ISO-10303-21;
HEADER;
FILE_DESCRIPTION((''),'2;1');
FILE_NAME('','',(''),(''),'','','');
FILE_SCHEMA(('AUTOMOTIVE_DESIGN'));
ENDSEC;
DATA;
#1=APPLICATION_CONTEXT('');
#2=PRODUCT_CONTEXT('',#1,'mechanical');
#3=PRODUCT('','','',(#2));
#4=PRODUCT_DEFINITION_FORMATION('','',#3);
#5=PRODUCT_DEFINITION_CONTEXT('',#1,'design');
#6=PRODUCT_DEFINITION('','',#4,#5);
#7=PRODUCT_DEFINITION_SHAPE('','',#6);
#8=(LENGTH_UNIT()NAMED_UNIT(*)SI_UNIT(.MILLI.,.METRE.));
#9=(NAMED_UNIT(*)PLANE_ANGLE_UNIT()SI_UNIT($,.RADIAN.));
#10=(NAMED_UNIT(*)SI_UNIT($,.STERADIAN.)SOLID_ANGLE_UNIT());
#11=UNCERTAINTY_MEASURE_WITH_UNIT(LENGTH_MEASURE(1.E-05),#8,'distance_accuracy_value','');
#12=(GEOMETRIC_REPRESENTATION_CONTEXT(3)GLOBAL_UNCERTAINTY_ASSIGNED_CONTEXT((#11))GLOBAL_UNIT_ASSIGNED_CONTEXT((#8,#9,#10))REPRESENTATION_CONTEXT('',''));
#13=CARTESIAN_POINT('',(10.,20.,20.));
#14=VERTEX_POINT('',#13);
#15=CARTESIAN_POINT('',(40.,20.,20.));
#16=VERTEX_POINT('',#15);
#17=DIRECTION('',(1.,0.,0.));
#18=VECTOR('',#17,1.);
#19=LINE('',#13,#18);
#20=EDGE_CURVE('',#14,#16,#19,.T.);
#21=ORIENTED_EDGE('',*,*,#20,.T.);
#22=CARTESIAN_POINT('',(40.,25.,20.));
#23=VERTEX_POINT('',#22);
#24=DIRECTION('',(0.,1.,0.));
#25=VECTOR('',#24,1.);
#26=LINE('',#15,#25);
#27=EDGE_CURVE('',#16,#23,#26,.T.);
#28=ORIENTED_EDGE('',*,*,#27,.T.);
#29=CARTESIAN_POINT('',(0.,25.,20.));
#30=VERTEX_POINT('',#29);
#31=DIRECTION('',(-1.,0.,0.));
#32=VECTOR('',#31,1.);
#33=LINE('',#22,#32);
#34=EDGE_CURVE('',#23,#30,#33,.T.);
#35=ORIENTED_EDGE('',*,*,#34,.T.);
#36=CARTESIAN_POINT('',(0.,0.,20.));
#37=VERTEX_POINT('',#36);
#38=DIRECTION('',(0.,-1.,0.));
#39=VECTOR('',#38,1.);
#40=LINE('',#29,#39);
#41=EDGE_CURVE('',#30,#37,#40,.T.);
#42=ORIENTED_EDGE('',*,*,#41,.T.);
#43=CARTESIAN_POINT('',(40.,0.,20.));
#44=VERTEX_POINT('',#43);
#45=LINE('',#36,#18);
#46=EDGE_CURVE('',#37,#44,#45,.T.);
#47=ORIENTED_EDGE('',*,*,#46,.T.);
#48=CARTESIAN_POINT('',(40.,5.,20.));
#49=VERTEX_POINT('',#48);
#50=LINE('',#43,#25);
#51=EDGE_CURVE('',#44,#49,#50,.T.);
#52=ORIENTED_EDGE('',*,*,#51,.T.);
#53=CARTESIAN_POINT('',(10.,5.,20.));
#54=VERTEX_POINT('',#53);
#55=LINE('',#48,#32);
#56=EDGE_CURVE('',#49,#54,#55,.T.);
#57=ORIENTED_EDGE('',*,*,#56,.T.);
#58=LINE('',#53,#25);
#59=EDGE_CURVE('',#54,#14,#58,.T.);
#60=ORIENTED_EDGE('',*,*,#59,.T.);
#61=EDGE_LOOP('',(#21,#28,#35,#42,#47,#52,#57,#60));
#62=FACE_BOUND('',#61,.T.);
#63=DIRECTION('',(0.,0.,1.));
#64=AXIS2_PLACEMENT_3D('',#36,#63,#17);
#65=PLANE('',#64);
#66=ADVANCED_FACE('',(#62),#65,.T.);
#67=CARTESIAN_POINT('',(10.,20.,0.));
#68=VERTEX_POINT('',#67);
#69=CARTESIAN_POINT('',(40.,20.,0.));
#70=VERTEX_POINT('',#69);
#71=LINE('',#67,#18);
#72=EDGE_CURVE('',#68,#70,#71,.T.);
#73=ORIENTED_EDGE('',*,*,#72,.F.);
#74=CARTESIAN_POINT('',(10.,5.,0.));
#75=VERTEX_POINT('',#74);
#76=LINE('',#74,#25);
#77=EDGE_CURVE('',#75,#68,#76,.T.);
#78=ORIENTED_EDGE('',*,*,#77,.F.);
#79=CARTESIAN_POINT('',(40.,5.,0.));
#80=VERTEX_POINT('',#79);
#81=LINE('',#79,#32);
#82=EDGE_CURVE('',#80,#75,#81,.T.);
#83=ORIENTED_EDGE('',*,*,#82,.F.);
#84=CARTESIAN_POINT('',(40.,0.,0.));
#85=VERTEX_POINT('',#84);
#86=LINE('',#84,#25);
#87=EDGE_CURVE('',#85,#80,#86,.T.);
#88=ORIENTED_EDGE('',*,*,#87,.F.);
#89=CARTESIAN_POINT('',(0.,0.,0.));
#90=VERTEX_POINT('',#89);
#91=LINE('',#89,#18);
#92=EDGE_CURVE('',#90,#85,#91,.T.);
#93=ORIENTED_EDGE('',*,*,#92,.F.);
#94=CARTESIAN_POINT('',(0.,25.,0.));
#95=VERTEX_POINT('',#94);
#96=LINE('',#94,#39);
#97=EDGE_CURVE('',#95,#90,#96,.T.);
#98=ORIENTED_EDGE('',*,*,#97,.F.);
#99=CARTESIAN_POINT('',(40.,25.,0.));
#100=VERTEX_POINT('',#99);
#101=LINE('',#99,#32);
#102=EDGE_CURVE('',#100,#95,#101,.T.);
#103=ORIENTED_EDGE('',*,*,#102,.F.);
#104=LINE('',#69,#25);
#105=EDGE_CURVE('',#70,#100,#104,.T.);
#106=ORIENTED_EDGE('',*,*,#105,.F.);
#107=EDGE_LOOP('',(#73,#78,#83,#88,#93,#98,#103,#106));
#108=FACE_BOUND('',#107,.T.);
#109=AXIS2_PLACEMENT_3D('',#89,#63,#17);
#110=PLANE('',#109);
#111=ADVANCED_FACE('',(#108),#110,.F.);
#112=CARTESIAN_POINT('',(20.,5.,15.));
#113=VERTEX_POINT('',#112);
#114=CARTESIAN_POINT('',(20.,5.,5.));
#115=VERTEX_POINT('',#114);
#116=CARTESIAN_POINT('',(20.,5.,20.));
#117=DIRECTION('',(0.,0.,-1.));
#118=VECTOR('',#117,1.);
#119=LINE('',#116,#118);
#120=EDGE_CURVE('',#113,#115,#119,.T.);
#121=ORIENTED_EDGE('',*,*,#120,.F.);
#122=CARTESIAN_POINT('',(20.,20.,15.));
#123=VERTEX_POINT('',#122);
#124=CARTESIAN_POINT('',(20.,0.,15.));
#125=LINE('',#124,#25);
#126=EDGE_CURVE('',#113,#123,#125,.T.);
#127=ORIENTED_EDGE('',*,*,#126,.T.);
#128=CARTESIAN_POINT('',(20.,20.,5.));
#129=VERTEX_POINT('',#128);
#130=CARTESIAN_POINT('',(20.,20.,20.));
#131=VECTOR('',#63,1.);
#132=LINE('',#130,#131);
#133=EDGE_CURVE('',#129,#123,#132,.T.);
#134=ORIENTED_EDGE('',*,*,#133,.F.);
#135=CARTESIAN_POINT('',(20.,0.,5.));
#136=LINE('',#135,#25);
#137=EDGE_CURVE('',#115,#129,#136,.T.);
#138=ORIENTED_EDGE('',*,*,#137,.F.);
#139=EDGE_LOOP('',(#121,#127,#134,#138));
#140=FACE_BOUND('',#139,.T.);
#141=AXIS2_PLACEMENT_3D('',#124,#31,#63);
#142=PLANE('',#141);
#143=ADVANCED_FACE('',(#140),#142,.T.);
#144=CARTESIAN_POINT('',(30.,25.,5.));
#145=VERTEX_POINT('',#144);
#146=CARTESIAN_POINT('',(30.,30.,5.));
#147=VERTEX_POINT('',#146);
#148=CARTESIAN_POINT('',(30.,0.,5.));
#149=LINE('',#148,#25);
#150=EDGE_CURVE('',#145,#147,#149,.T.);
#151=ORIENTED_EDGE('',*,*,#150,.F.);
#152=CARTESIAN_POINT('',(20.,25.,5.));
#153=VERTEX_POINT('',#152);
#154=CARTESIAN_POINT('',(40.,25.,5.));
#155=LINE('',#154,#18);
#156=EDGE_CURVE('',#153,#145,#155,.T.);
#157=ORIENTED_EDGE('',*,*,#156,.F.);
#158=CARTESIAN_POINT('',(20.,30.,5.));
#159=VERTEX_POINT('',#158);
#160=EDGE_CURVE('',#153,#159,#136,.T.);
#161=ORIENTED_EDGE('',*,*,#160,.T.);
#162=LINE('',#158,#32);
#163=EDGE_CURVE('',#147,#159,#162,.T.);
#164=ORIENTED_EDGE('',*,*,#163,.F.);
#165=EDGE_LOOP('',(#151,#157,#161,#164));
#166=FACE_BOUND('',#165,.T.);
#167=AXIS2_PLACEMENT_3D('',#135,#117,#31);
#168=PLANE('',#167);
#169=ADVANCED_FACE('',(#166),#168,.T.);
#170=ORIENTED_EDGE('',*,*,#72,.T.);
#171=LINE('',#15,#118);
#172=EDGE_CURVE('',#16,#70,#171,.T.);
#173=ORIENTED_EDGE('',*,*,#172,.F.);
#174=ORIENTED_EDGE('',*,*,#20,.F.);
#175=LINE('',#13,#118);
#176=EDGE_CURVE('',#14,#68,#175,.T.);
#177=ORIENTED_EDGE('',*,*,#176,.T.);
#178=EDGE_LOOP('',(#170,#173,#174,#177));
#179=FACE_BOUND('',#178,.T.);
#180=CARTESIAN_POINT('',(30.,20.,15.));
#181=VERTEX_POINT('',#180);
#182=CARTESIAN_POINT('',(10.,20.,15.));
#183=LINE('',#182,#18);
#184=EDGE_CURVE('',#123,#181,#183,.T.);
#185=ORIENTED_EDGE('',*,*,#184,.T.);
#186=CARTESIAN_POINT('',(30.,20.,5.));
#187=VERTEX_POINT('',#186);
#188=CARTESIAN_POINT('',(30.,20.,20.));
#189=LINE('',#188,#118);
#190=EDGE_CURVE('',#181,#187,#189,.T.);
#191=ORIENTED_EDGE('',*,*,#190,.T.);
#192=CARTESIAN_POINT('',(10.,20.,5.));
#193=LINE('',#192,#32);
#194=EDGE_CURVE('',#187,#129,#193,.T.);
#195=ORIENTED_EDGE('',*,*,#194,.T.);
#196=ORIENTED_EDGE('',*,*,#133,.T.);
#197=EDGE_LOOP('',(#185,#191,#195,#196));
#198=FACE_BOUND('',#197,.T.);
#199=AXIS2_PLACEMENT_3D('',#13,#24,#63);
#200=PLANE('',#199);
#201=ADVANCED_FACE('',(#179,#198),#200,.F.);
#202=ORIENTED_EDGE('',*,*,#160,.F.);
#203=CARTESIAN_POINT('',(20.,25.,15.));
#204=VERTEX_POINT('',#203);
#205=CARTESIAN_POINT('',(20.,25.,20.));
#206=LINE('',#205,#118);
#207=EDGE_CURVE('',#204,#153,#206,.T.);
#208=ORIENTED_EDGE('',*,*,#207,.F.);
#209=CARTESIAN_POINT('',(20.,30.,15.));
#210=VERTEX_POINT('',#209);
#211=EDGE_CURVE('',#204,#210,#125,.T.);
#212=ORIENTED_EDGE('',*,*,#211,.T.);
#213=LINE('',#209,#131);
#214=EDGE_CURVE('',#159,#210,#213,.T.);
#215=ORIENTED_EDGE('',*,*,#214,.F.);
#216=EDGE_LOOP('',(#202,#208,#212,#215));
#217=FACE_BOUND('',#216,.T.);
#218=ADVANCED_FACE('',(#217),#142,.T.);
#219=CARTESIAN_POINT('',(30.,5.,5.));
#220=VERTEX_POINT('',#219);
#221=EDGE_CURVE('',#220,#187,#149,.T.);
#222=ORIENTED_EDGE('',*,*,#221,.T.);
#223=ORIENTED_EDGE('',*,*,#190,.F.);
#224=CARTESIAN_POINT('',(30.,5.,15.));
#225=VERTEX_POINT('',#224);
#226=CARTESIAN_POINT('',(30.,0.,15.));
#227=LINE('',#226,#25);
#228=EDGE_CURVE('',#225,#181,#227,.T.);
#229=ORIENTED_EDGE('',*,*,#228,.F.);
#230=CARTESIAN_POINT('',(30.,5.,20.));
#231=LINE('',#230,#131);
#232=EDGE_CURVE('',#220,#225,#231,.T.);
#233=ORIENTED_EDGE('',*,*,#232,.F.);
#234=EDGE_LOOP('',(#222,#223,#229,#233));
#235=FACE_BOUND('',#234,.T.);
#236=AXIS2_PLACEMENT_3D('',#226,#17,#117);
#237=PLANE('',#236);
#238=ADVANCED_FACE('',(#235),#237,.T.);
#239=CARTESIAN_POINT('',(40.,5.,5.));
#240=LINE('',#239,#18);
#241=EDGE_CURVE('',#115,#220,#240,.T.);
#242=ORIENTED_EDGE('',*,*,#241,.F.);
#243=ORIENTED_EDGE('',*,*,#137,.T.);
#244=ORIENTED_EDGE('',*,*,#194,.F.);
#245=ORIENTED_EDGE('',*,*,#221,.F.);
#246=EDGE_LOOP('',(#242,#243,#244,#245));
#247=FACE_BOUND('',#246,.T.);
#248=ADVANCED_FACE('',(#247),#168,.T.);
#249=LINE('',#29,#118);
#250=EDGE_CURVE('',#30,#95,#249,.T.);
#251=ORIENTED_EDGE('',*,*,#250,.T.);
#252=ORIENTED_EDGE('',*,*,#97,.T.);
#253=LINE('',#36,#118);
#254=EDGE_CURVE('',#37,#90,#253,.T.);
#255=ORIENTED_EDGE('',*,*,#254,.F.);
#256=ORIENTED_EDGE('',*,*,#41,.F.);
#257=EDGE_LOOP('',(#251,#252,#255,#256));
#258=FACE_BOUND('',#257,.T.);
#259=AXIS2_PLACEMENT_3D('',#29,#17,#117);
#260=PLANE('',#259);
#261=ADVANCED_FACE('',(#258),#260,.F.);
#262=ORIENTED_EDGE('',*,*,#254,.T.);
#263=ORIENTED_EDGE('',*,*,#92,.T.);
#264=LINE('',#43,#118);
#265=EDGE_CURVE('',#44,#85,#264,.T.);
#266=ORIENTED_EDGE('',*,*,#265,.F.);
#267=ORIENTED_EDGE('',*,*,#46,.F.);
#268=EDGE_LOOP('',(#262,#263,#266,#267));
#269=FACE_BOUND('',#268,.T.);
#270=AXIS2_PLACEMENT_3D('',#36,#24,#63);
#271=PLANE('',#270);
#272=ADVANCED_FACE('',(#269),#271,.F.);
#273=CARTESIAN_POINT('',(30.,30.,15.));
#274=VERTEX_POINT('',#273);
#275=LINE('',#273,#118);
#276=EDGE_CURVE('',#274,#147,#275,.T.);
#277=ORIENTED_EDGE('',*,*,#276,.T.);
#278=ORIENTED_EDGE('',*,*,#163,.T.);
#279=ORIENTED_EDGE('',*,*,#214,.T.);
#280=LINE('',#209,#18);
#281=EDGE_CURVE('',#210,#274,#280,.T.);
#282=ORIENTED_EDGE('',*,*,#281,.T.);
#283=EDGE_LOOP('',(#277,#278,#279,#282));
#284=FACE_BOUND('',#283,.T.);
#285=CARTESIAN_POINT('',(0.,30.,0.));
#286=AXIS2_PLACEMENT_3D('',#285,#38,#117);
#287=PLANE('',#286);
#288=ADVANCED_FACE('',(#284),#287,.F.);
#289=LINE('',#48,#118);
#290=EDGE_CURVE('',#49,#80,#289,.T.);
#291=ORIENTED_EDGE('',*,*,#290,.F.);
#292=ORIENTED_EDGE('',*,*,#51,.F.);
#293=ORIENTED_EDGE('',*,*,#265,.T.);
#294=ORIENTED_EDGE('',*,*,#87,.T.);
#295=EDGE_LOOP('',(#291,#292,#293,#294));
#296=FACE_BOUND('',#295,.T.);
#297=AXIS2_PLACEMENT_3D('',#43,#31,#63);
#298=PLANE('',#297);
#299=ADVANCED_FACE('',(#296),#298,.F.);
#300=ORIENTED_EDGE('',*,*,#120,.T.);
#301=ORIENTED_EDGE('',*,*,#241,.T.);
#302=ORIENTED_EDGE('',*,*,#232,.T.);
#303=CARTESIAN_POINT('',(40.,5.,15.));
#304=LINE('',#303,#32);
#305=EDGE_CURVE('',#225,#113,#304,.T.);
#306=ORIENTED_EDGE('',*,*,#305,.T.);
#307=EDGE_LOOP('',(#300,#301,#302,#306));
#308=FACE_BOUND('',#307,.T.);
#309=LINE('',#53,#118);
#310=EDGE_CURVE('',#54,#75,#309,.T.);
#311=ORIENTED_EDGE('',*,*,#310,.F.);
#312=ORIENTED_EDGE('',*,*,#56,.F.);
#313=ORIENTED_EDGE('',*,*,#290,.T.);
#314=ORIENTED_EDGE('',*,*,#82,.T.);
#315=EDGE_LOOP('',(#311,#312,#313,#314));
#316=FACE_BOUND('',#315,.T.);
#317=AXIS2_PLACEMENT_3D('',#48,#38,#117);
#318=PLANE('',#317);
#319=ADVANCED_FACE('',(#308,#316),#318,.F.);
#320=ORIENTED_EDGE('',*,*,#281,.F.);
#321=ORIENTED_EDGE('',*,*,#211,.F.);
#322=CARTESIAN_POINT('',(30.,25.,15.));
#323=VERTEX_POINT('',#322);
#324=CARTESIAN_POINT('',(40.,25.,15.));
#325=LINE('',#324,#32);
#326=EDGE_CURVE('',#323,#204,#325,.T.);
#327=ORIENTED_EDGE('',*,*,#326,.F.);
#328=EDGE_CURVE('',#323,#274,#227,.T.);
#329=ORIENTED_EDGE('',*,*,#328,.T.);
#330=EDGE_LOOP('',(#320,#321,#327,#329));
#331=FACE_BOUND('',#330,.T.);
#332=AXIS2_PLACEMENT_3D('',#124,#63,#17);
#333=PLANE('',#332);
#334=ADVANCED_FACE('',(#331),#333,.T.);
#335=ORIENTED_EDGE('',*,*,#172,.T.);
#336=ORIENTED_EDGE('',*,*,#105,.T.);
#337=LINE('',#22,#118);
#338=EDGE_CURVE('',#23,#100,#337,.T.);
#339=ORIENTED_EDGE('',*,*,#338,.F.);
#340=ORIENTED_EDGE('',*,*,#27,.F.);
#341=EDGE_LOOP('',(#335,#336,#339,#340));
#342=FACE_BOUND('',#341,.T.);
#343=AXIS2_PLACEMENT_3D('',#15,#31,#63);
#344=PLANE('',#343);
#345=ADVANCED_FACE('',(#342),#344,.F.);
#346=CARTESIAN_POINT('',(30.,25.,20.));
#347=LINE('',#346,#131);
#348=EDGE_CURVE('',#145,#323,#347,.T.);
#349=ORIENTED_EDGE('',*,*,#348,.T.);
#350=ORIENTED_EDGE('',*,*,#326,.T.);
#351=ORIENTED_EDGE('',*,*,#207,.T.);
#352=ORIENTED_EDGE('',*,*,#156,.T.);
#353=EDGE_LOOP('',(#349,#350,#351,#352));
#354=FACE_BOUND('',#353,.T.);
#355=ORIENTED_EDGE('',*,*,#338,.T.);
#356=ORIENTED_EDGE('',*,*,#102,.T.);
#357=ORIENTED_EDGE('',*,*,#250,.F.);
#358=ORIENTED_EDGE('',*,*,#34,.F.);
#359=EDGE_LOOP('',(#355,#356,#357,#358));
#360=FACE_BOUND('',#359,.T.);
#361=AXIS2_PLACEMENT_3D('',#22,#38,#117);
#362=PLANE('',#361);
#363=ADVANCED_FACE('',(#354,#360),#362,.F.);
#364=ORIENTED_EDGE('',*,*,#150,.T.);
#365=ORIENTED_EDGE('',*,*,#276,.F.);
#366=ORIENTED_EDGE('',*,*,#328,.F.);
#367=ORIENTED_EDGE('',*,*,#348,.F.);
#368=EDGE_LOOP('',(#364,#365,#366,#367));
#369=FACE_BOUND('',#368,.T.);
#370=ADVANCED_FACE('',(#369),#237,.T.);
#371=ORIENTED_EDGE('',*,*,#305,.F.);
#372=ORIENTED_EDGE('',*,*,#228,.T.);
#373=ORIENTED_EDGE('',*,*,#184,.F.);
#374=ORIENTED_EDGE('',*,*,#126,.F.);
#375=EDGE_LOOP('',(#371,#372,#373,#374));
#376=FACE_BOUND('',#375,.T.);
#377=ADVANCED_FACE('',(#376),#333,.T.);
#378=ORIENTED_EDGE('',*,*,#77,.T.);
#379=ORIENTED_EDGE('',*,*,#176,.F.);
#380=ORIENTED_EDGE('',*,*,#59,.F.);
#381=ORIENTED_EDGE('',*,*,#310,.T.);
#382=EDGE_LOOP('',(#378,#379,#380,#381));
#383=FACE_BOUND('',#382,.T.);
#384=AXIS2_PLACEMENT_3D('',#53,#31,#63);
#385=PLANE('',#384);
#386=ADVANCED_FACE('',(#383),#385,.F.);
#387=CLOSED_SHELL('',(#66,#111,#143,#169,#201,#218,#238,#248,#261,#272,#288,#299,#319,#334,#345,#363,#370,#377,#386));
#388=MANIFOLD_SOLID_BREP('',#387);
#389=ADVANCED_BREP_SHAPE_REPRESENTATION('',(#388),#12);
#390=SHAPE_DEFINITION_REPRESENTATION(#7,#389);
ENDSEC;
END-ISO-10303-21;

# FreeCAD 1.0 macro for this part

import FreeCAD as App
import Part
import Sketcher
from FreeCAD import Vector

doc = App.newDocument("Part")
body = doc.addObject("PartDesign::Body", "Body")

sketch1 = body.newObject("Sketcher::SketchObject", "Sketch")
sketch1.AttachmentSupport = (doc.getObject("XY_Plane"), [""])
sketch1.MapMode = "FlatFace"
sketch1.addGeometry(Part.LineSegment(Vector(0, 0, 0), Vector(40, 0, 0)), False)
sketch1.addGeometry(Part.LineSegment(Vector(40, 0, 0), Vector(40, 5, 0)), False)
sketch1.addGeometry(Part.LineSegment(Vector(40, 5, 0), Vector(10, 5, 0)), False)
sketch1.addGeometry(Part.LineSegment(Vector(10, 5, 0), Vector(10, 20, 0)), False)
sketch1.addGeometry(Part.LineSegment(Vector(10, 20, 0), Vector(40, 20, 0)), False)
sketch1.addGeometry(Part.LineSegment(Vector(40, 20, 0), Vector(40, 25, 0)), False)
sketch1.addGeometry(Part.LineSegment(Vector(40, 25, 0), Vector(0, 25, 0)), False)
sketch1.addGeometry(Part.LineSegment(Vector(0, 25, 0), Vector(0, 0, 0)), False)
sketch1.addConstraint(Sketcher.Constraint("Coincident", 0, 2, 1, 1))
sketch1.addConstraint(Sketcher.Constraint("Coincident", 1, 2, 2, 1))
sketch1.addConstraint(Sketcher.Constraint("Coincident", 2, 2, 3, 1))
sketch1.addConstraint(Sketcher.Constraint("Coincident", 3, 2, 4, 1))
sketch1.addConstraint(Sketcher.Constraint("Coincident", 4, 2, 5, 1))
sketch1.addConstraint(Sketcher.Constraint("Coincident", 5, 2, 6, 1))
sketch1.addConstraint(Sketcher.Constraint("Coincident", 6, 2, 7, 1))
sketch1.addConstraint(Sketcher.Constraint("Coincident", 7, 2, 0, 1))
sketch1.addConstraint(Sketcher.Constraint("Horizontal", 0))
sketch1.addConstraint(Sketcher.Constraint("Vertical", 1))
sketch1.addConstraint(Sketcher.Constraint("Horizontal", 2))
sketch1.addConstraint(Sketcher.Constraint("Vertical", 3))
sketch1.addConstraint(Sketcher.Constraint("Horizontal", 4))
sketch1.addConstraint(Sketcher.Constraint("Vertical", 5))
sketch1.addConstraint(Sketcher.Constraint("Horizontal", 6))
sketch1.addConstraint(Sketcher.Constraint("Vertical", 7))
sketch1.addConstraint(Sketcher.Constraint("Coincident", 7, 2, -1, 1))
sketch1.addConstraint(Sketcher.Constraint("Vertical", 1, 2, 4, 2))
sketch1.addConstraint(Sketcher.Constraint("Equal", 1, 5))
sketch1.addConstraint(Sketcher.Constraint("DistanceX", 0, 1, 0, 2, 40.0))
sketch1.addConstraint(Sketcher.Constraint("DistanceX", 2, 2, 2, 1, 30.0))
sketch1.addConstraint(Sketcher.Constraint("DistanceY", 1, 1, 1, 2, 5.0))
sketch1.addConstraint(Sketcher.Constraint("DistanceY", 3, 1, 3, 2, 15.0))
pad1 = body.newObject("PartDesign::Pad", "Pad")
pad1.Profile = sketch1
pad1.Length = 20

sketch2 = body.newObject("Sketcher::SketchObject", "Sketch001")
sketch2.AttachmentSupport = (doc.getObject("XZ_Plane"), [""])
sketch2.MapMode = "FlatFace"
sketch2.AttachmentOffset = App.Placement(Vector(0, 0, -25), App.Rotation())
sketch2.addGeometry(Part.LineSegment(Vector(20, 5, 0), Vector(20, 15, 0)), False)
sketch2.addGeometry(Part.LineSegment(Vector(20, 15, 0), Vector(30, 15, 0)), False)
sketch2.addGeometry(Part.LineSegment(Vector(30, 15, 0), Vector(30, 5, 0)), False)
sketch2.addGeometry(Part.LineSegment(Vector(30, 5, 0), Vector(20, 5, 0)), False)
sketch2.addConstraint(Sketcher.Constraint("Coincident", 0, 2, 1, 1))
sketch2.addConstraint(Sketcher.Constraint("Coincident", 1, 2, 2, 1))
sketch2.addConstraint(Sketcher.Constraint("Coincident", 2, 2, 3, 1))
sketch2.addConstraint(Sketcher.Constraint("Coincident", 3, 2, 0, 1))
sketch2.addConstraint(Sketcher.Constraint("Vertical", 0))
sketch2.addConstraint(Sketcher.Constraint("Horizontal", 1))
sketch2.addConstraint(Sketcher.Constraint("Vertical", 2))
sketch2.addConstraint(Sketcher.Constraint("Horizontal", 3))
sketch2.addConstraint(Sketcher.Constraint("Equal", 3, 0))
sketch2.addConstraint(Sketcher.Constraint("DistanceX", 1, 1, 1, 2, 10.0))
sketch2.addConstraint(Sketcher.Constraint("DistanceX", -1, 1, 0, 2, 20.0))
sketch2.addConstraint(Sketcher.Constraint("DistanceY", -1, 1, 0, 2, 15.0))
pad2 = body.newObject("PartDesign::Pad", "Pad001")
pad2.Profile = sketch2
pad2.Length = 5
pad2.Reversed = True

sketch3 = body.newObject("Sketcher::SketchObject", "Sketch002")
sketch3.AttachmentSupport = (doc.getObject("XZ_Plane"), [""])
sketch3.MapMode = "FlatFace"
sketch3.AttachmentOffset = App.Placement(Vector(0, 0, -25), App.Rotation())
sketch3.addGeometry(Part.LineSegment(Vector(20, 5, 0), Vector(20, 15, 0)), False)
sketch3.addGeometry(Part.LineSegment(Vector(20, 15, 0), Vector(30, 15, 0)), False)
sketch3.addGeometry(Part.LineSegment(Vector(30, 15, 0), Vector(30, 5, 0)), False)
sketch3.addGeometry(Part.LineSegment(Vector(30, 5, 0), Vector(20, 5, 0)), False)
sketch3.addConstraint(Sketcher.Constraint("Coincident", 0, 2, 1, 1))
sketch3.addConstraint(Sketcher.Constraint("Coincident", 1, 2, 2, 1))
sketch3.addConstraint(Sketcher.Constraint("Coincident", 2, 2, 3, 1))
sketch3.addConstraint(Sketcher.Constraint("Coincident", 3, 2, 0, 1))
sketch3.addConstraint(Sketcher.Constraint("Vertical", 0))
sketch3.addConstraint(Sketcher.Constraint("Horizontal", 1))
sketch3.addConstraint(Sketcher.Constraint("Vertical", 2))
sketch3.addConstraint(Sketcher.Constraint("Horizontal", 3))
sketch3.addConstraint(Sketcher.Constraint("Equal", 3, 0))
sketch3.addConstraint(Sketcher.Constraint("DistanceX", 1, 1, 1, 2, 10.0))
sketch3.addConstraint(Sketcher.Constraint("DistanceX", -1, 1, 0, 2, 20.0))
sketch3.addConstraint(Sketcher.Constraint("DistanceY", -1, 1, 0, 2, 15.0))
pad3 = body.newObject("PartDesign::Pad", "Pad002")
pad3.Profile = sketch3
pad3.Length = 20

doc.recompute()
